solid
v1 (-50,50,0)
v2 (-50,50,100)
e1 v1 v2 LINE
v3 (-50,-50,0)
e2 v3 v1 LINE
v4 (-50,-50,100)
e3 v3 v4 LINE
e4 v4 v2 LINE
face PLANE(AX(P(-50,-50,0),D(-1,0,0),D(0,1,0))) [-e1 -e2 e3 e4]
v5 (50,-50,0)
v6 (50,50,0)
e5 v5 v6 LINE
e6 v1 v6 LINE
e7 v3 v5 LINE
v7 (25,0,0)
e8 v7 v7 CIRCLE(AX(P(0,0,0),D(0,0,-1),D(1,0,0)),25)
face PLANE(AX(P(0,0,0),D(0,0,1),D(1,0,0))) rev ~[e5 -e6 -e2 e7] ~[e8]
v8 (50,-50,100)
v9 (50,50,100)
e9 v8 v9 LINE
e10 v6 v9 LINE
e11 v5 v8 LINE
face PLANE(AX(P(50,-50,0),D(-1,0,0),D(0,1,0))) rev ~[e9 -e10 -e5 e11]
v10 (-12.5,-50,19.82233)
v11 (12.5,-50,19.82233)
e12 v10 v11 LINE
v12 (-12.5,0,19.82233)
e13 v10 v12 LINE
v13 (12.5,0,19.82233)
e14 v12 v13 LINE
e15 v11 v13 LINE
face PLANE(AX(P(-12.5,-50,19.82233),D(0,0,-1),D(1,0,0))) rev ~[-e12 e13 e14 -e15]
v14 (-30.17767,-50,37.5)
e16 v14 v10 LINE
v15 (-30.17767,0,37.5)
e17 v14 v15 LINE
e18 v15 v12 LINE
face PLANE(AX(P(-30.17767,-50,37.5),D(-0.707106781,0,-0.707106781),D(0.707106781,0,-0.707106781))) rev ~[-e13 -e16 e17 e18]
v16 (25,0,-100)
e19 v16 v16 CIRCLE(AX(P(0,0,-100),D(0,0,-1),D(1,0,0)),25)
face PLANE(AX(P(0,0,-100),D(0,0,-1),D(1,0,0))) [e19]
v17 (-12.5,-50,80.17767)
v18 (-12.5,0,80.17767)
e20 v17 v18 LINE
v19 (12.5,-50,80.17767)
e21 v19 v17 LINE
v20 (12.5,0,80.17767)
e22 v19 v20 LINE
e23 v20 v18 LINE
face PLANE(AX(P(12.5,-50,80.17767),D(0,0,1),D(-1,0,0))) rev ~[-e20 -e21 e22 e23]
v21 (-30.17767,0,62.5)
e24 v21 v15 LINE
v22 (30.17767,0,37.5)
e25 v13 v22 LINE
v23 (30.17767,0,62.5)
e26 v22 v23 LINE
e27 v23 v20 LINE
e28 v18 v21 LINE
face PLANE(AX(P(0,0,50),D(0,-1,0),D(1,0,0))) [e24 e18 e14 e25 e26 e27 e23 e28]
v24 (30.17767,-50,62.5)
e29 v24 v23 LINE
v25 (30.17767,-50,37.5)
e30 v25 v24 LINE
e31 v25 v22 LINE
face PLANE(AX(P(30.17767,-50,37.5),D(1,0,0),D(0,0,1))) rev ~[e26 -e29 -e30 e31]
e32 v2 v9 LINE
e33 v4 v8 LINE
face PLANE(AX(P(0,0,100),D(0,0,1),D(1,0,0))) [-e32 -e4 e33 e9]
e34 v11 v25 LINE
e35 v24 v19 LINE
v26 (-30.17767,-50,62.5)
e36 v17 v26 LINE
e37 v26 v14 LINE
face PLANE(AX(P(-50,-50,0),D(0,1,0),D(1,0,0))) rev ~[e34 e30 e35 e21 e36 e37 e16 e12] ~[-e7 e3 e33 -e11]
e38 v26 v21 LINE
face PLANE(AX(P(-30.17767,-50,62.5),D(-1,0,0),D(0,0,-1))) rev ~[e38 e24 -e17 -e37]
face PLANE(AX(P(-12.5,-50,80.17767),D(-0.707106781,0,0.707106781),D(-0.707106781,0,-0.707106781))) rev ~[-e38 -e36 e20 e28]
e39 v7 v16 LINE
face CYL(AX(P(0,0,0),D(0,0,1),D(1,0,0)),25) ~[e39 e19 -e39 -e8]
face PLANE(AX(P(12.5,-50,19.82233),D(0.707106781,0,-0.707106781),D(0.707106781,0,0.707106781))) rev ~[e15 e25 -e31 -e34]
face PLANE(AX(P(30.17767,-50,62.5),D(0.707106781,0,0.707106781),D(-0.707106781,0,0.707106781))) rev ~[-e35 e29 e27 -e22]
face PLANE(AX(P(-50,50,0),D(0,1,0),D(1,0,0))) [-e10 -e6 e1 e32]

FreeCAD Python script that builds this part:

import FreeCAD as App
import Part
import Sketcher
from FreeCAD import Vector


def add_polygon(sketch, points):
    """Adds a closed chain of lines whose ends are joined by coincident constraints."""
    first, n = sketch.GeometryCount, len(points)
    for a, b in zip(points, points[1:] + points[:1]):
        sketch.addGeometry(Part.LineSegment(App.Vector(*a, 0), App.Vector(*b, 0)), False)
    for i in range(n):
        sketch.addConstraint(Sketcher.Constraint("Coincident", first + i, 2, first + (i + 1) % n, 1))

doc = App.newDocument("Part")
params = doc.addObject("Spreadsheet::Sheet", "Params")
for row, (alias, value) in enumerate([
    ("sketch1_width", "100 mm"),
    ("pad1_length", "100 mm"),
    ("sketch2_diameter", "50 mm"),
    ("pad2_length", "100 mm"),
    ("sketch3_width", "25 mm"),
    ("sketch3_length", "25.000001 mm"),
    ("pocket1_length", "50 mm"),
], start=1):
    params.set(f"A{row}", alias)
    params.set(f"B{row}", "=" + value)
    params.setAlias(f"B{row}", alias)

body = doc.addObject("PartDesign::Body", "Body")

sketch1 = body.newObject("Sketcher::SketchObject", "Sketch")
sketch1.AttachmentSupport = (doc.getObject("XY_Plane"), [""])
sketch1.MapMode = "FlatFace"
add_polygon(sketch1, [(-50, 50), (-50, -50), (50, -50), (50, 50)])
sketch1.addConstraint([
    Sketcher.Constraint("Vertical", 0),
    Sketcher.Constraint("Horizontal", 1),
    Sketcher.Constraint("Vertical", 2),
    Sketcher.Constraint("Horizontal", 3),
    Sketcher.Constraint("Symmetric", 0, 2, 2, 2, -1, 1),
    Sketcher.Constraint("Equal", 3, 0),
    Sketcher.Constraint("DistanceX", 1, 1, 1, 2, 100.0),
])
sketch1.setExpression("Constraints[10]", "Params.sketch1_width")
pad1 = body.newObject("PartDesign::Pad", "Pad")
pad1.Profile = sketch1
pad1.setExpression("Length", "Params.pad1_length")

sketch2 = body.newObject("Sketcher::SketchObject", "Sketch001")
sketch2.AttachmentSupport = (doc.getObject("XY_Plane"), [""])
sketch2.MapMode = "FlatFace"
sketch2.addGeometry(Part.Circle(Vector(0, 0, 0), Vector(0, 0, 1), 25), False)
sketch2.addConstraint([
    Sketcher.Constraint("Coincident", 0, 3, -1, 1),
    Sketcher.Constraint("Diameter", 0, 50.0),
])
sketch2.setExpression("Constraints[1]", "Params.sketch2_diameter")
pad2 = body.newObject("PartDesign::Pad", "Pad001")
pad2.Profile = sketch2
pad2.setExpression("Length", "Params.pad2_length")
pad2.Reversed = True

sketch3 = body.newObject("Sketcher::SketchObject", "Sketch002")
sketch3.AttachmentSupport = (doc.getObject("XZ_Plane"), [""])
sketch3.MapMode = "FlatFace"
sketch3.AttachmentOffset = App.Placement(Vector(0, 0, 50), App.Rotation())
add_polygon(sketch3, [(12.5, 80.17767), (-12.5, 80.17767), (-30.17767, 62.5), (-30.17767, 37.5), (-12.5, 19.82233), (12.5, 19.82233), (30.17767, 37.5), (30.17767, 62.5)])
sketch3.addConstraint([
    Sketcher.Constraint("Horizontal", 0),
    Sketcher.Constraint("Vertical", 2),
    Sketcher.Constraint("Horizontal", 4),
    Sketcher.Constraint("Vertical", 6),
    Sketcher.Constraint("Symmetric", 2, 2, 5, 2, -2),
    Sketcher.Constraint("Perpendicular", 1, 3),
    Sketcher.Constraint("Perpendicular", 3, 5),
    Sketcher.Constraint("Perpendicular", 5, 7),
    Sketcher.Constraint("Horizontal", 1, 2, 6, 2),
    Sketcher.Constraint("Vertical", 0, 2, 3, 2),
    Sketcher.Constraint("Vertical", 4, 2, 7, 2),
    Sketcher.Constraint("Equal", 4, 2),
    Sketcher.Constraint("DistanceX", 0, 2, 0, 1, 25.0),
    Sketcher.Constraint("Distance", 1, 25.000001),
    Sketcher.Constraint("DistanceY", -1, 1, 1, 2, 62.5),
])
sketch3.setExpression("Constraints[20]", "Params.sketch3_width")
sketch3.setExpression("Constraints[21]", "Params.sketch3_length")
pocket1 = body.newObject("PartDesign::Pocket", "Pocket")
pocket1.Profile = sketch3
pocket1.setExpression("Length", "Params.pocket1_length")

doc.recompute()
